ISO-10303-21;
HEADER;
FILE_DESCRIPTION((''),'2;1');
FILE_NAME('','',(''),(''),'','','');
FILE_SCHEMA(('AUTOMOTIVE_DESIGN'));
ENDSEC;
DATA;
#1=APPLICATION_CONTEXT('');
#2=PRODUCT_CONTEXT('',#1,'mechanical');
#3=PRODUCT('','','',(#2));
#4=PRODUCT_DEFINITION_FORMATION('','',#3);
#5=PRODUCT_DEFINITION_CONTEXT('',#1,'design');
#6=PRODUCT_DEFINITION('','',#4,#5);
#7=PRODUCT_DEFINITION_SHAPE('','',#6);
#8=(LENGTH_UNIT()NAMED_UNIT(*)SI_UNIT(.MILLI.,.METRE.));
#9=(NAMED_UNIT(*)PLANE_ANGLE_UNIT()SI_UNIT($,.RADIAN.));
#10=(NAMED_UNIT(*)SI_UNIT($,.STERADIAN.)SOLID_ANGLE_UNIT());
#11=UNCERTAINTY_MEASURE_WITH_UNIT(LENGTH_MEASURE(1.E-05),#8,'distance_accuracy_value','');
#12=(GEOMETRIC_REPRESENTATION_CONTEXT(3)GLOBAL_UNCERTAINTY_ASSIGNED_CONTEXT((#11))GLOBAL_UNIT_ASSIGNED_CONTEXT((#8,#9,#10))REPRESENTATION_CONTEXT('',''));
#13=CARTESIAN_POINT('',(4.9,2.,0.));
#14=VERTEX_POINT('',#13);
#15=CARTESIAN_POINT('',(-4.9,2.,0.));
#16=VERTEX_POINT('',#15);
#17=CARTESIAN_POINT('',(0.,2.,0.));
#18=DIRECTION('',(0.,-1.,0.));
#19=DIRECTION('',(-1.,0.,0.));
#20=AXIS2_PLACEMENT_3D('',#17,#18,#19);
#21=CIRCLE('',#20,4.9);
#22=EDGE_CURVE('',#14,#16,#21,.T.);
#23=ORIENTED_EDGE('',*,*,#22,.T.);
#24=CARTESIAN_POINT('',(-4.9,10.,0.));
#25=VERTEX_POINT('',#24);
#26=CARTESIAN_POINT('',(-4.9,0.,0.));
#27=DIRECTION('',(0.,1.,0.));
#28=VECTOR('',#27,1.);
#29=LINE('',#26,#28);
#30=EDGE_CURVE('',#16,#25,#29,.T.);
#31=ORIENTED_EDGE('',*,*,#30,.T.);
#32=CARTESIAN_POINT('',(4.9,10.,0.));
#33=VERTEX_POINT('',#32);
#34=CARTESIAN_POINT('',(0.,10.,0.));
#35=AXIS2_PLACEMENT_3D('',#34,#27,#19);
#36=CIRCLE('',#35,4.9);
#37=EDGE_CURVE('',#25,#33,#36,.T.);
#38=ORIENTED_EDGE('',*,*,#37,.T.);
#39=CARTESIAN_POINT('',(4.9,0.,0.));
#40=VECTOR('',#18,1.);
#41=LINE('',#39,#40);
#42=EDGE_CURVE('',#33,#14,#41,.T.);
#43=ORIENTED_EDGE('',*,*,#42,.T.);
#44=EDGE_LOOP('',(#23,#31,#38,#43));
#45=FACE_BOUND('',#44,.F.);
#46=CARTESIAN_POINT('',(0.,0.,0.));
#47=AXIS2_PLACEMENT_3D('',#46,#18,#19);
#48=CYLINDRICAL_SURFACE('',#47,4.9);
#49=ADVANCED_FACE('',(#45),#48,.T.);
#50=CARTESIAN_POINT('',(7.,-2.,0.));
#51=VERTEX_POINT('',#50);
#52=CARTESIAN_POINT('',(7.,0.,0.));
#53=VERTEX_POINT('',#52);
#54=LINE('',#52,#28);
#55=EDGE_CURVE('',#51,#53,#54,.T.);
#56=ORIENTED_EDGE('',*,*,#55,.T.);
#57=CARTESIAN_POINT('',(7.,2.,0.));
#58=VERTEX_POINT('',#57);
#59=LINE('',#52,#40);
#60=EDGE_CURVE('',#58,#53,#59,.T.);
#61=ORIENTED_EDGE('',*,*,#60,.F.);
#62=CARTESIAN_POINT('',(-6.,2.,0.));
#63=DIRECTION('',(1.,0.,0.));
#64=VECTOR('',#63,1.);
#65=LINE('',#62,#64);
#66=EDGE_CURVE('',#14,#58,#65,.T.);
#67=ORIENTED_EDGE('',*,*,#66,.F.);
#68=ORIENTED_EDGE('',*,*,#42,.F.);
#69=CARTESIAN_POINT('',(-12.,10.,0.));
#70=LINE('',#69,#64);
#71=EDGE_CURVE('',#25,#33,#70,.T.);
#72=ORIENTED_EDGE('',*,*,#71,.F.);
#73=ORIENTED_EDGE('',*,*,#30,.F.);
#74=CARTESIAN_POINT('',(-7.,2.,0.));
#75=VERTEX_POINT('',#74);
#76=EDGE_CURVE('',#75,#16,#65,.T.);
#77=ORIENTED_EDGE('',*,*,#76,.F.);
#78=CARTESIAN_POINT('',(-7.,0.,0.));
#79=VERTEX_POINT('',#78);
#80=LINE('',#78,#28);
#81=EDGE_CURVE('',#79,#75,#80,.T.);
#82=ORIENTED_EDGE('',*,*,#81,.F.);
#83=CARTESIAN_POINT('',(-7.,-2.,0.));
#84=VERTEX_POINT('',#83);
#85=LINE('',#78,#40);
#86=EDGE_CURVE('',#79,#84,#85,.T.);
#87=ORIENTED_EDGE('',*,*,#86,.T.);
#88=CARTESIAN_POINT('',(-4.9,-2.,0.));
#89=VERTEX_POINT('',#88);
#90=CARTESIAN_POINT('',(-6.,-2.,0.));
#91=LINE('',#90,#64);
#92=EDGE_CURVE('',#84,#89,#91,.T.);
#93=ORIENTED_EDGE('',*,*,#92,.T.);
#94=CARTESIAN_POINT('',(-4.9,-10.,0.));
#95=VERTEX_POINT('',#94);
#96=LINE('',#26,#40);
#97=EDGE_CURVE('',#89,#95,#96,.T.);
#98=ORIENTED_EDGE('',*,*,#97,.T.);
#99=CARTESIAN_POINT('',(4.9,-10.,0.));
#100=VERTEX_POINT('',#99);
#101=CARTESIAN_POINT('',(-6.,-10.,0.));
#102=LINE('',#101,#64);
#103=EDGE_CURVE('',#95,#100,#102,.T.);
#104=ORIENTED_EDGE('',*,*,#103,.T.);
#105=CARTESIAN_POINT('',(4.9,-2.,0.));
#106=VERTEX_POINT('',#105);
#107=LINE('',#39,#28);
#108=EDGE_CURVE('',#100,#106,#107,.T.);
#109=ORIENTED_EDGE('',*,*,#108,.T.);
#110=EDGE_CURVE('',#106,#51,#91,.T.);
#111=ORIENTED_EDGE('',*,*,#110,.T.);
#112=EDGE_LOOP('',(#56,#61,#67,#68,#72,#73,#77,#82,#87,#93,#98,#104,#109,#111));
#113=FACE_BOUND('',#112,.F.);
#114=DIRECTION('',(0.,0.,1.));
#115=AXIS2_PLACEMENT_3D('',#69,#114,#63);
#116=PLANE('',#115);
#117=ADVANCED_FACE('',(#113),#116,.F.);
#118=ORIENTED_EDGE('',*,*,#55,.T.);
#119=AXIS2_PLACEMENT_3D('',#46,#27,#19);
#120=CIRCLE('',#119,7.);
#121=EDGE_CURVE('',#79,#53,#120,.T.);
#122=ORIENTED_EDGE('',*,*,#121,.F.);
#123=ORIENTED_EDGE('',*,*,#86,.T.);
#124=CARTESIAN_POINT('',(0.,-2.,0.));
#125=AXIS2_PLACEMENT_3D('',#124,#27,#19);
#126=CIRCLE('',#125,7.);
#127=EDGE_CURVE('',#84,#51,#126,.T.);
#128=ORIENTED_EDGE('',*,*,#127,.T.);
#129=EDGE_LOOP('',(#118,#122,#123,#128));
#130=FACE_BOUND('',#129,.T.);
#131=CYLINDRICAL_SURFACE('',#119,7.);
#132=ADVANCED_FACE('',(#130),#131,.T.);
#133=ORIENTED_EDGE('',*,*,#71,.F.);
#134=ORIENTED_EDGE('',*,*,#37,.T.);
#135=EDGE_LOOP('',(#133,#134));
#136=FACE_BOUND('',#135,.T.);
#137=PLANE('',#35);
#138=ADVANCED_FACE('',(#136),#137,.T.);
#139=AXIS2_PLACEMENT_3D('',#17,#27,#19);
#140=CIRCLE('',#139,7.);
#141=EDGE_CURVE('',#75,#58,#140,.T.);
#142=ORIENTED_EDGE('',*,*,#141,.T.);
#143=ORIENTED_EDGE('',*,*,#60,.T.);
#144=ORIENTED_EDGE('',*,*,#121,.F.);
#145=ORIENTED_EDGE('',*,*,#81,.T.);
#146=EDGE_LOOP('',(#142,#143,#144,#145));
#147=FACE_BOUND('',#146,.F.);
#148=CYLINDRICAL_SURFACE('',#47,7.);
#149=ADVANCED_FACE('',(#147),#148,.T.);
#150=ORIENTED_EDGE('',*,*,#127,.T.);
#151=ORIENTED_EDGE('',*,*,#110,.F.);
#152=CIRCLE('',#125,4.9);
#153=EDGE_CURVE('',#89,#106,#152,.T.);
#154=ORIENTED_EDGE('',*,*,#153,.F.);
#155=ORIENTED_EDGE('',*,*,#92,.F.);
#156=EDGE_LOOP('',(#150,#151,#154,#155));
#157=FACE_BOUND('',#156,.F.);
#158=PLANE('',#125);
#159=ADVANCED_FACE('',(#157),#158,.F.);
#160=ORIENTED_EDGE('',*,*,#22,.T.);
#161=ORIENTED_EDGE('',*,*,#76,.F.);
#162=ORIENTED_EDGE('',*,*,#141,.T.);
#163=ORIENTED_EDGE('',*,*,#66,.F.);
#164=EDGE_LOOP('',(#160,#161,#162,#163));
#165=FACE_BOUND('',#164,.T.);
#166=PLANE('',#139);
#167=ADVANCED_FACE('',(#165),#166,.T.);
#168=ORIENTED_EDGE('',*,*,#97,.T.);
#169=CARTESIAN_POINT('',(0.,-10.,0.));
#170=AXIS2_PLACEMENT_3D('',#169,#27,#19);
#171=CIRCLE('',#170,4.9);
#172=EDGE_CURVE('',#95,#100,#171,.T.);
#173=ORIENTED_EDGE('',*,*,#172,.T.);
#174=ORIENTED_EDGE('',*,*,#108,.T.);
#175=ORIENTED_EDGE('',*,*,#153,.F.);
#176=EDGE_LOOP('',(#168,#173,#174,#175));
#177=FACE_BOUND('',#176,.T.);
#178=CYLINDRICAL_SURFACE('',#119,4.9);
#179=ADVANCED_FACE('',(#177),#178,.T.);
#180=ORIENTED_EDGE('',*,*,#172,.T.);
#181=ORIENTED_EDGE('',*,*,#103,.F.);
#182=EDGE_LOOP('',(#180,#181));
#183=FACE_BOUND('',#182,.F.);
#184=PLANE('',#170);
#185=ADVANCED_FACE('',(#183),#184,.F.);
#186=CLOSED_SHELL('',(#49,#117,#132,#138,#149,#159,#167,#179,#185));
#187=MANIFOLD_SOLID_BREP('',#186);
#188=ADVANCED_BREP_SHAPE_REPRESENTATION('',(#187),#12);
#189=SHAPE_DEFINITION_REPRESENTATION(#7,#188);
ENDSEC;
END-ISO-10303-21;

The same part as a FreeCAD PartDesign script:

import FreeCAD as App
import Part
import Sketcher
from FreeCAD import Vector


def add_polygon(sketch, points):
    """Adds a closed chain of lines whose ends are joined by coincident constraints."""
    first, n = sketch.GeometryCount, len(points)
    for a, b in zip(points, points[1:] + points[:1]):
        sketch.addGeometry(Part.LineSegment(App.Vector(*a, 0), App.Vector(*b, 0)), False)
    for i in range(n):
        sketch.addConstraint(Sketcher.Constraint("Coincident", first + i, 2, first + (i + 1) % n, 1))

doc = App.newDocument("Part")
params = doc.addObject("Spreadsheet::Sheet", "Params")
for row, (alias, value) in enumerate([
    ("sketch1_diameter", "9.8 mm"),
    ("pad1_length", "20 mm"),
    ("sketch2_diameter", "14 mm"),
    ("pad2_length", "4 mm"),
    ("sketch3_width", "25 mm"),
    ("sketch3_height", "11 mm"),
    ("pocket1_length", "28 mm"),
], start=1):
    params.set(f"A{row}", alias)
    params.set(f"B{row}", "=" + value)
    params.setAlias(f"B{row}", alias)

body = doc.addObject("PartDesign::Body", "Body")

sketch1 = body.newObject("Sketcher::SketchObject", "Sketch")
sketch1.AttachmentSupport = (doc.getObject("XZ_Plane"), [""])
sketch1.MapMode = "FlatFace"
sketch1.addGeometry(Part.Circle(Vector(0, 0, 0), Vector(0, 0, 1), 4.9), False)
sketch1.addConstraint(Sketcher.Constraint("Coincident", 0, 3, -1, 1))
sketch1.addConstraint(Sketcher.Constraint("Diameter", 0, 9.8))
sketch1.setExpression("Constraints[1]", "Params.sketch1_diameter")
pad1 = body.newObject("PartDesign::Pad", "Pad")
pad1.Profile = sketch1
pad1.setExpression("Length", "Params.pad1_length")
pad1.Midplane = True

sketch2 = body.newObject("Sketcher::SketchObject", "Sketch001")
sketch2.AttachmentSupport = (doc.getObject("XZ_Plane"), [""])
sketch2.MapMode = "FlatFace"
sketch2.addGeometry(Part.Circle(Vector(0, 0, 0), Vector(0, 0, 1), 7), False)
sketch2.addConstraint(Sketcher.Constraint("Coincident", 0, 3, -1, 1))
sketch2.addConstraint(Sketcher.Constraint("Diameter", 0, 14.0))
sketch2.setExpression("Constraints[1]", "Params.sketch2_diameter")
pad2 = body.newObject("PartDesign::Pad", "Pad001")
pad2.Profile = sketch2
pad2.setExpression("Length", "Params.pad2_length")
pad2.Midplane = True

sketch3 = body.newObject("Sketcher::SketchObject", "Sketch002")
sketch3.AttachmentSupport = (doc.getObject("XZ_Plane"), [""])
sketch3.MapMode = "FlatFace"
sketch3.AttachmentOffset = App.Placement(Vector(0, 0, -10), App.Rotation())
add_polygon(sketch3, [(-12, -11), (-12, 0), (13, 0), (13, -11)])
sketch3.addConstraint(Sketcher.Constraint("Vertical", 0))
sketch3.addConstraint(Sketcher.Constraint("Horizontal", 1))
sketch3.addConstraint(Sketcher.Constraint("Vertical", 2))
sketch3.addConstraint(Sketcher.Constraint("Horizontal", 3))
sketch3.addConstraint(Sketcher.Constraint("PointOnObject", 0, 2, -1))
sketch3.addConstraint(Sketcher.Constraint("DistanceX", 1, 1, 1, 2, 25.0))
sketch3.addConstraint(Sketcher.Constraint("DistanceY", 0, 1, 0, 2, 11.0))
sketch3.addConstraint(Sketcher.Constraint("DistanceX", 0, 2, -1, 1, 12.0))
sketch3.setExpression("Constraints[9]", "Params.sketch3_width")
sketch3.setExpression("Constraints[10]", "Params.sketch3_height")
pocket1 = body.newObject("PartDesign::Pocket", "Pocket")
pocket1.Profile = sketch3
pocket1.setExpression("Length", "Params.pocket1_length")
pocket1.Reversed = True

doc.recompute()
